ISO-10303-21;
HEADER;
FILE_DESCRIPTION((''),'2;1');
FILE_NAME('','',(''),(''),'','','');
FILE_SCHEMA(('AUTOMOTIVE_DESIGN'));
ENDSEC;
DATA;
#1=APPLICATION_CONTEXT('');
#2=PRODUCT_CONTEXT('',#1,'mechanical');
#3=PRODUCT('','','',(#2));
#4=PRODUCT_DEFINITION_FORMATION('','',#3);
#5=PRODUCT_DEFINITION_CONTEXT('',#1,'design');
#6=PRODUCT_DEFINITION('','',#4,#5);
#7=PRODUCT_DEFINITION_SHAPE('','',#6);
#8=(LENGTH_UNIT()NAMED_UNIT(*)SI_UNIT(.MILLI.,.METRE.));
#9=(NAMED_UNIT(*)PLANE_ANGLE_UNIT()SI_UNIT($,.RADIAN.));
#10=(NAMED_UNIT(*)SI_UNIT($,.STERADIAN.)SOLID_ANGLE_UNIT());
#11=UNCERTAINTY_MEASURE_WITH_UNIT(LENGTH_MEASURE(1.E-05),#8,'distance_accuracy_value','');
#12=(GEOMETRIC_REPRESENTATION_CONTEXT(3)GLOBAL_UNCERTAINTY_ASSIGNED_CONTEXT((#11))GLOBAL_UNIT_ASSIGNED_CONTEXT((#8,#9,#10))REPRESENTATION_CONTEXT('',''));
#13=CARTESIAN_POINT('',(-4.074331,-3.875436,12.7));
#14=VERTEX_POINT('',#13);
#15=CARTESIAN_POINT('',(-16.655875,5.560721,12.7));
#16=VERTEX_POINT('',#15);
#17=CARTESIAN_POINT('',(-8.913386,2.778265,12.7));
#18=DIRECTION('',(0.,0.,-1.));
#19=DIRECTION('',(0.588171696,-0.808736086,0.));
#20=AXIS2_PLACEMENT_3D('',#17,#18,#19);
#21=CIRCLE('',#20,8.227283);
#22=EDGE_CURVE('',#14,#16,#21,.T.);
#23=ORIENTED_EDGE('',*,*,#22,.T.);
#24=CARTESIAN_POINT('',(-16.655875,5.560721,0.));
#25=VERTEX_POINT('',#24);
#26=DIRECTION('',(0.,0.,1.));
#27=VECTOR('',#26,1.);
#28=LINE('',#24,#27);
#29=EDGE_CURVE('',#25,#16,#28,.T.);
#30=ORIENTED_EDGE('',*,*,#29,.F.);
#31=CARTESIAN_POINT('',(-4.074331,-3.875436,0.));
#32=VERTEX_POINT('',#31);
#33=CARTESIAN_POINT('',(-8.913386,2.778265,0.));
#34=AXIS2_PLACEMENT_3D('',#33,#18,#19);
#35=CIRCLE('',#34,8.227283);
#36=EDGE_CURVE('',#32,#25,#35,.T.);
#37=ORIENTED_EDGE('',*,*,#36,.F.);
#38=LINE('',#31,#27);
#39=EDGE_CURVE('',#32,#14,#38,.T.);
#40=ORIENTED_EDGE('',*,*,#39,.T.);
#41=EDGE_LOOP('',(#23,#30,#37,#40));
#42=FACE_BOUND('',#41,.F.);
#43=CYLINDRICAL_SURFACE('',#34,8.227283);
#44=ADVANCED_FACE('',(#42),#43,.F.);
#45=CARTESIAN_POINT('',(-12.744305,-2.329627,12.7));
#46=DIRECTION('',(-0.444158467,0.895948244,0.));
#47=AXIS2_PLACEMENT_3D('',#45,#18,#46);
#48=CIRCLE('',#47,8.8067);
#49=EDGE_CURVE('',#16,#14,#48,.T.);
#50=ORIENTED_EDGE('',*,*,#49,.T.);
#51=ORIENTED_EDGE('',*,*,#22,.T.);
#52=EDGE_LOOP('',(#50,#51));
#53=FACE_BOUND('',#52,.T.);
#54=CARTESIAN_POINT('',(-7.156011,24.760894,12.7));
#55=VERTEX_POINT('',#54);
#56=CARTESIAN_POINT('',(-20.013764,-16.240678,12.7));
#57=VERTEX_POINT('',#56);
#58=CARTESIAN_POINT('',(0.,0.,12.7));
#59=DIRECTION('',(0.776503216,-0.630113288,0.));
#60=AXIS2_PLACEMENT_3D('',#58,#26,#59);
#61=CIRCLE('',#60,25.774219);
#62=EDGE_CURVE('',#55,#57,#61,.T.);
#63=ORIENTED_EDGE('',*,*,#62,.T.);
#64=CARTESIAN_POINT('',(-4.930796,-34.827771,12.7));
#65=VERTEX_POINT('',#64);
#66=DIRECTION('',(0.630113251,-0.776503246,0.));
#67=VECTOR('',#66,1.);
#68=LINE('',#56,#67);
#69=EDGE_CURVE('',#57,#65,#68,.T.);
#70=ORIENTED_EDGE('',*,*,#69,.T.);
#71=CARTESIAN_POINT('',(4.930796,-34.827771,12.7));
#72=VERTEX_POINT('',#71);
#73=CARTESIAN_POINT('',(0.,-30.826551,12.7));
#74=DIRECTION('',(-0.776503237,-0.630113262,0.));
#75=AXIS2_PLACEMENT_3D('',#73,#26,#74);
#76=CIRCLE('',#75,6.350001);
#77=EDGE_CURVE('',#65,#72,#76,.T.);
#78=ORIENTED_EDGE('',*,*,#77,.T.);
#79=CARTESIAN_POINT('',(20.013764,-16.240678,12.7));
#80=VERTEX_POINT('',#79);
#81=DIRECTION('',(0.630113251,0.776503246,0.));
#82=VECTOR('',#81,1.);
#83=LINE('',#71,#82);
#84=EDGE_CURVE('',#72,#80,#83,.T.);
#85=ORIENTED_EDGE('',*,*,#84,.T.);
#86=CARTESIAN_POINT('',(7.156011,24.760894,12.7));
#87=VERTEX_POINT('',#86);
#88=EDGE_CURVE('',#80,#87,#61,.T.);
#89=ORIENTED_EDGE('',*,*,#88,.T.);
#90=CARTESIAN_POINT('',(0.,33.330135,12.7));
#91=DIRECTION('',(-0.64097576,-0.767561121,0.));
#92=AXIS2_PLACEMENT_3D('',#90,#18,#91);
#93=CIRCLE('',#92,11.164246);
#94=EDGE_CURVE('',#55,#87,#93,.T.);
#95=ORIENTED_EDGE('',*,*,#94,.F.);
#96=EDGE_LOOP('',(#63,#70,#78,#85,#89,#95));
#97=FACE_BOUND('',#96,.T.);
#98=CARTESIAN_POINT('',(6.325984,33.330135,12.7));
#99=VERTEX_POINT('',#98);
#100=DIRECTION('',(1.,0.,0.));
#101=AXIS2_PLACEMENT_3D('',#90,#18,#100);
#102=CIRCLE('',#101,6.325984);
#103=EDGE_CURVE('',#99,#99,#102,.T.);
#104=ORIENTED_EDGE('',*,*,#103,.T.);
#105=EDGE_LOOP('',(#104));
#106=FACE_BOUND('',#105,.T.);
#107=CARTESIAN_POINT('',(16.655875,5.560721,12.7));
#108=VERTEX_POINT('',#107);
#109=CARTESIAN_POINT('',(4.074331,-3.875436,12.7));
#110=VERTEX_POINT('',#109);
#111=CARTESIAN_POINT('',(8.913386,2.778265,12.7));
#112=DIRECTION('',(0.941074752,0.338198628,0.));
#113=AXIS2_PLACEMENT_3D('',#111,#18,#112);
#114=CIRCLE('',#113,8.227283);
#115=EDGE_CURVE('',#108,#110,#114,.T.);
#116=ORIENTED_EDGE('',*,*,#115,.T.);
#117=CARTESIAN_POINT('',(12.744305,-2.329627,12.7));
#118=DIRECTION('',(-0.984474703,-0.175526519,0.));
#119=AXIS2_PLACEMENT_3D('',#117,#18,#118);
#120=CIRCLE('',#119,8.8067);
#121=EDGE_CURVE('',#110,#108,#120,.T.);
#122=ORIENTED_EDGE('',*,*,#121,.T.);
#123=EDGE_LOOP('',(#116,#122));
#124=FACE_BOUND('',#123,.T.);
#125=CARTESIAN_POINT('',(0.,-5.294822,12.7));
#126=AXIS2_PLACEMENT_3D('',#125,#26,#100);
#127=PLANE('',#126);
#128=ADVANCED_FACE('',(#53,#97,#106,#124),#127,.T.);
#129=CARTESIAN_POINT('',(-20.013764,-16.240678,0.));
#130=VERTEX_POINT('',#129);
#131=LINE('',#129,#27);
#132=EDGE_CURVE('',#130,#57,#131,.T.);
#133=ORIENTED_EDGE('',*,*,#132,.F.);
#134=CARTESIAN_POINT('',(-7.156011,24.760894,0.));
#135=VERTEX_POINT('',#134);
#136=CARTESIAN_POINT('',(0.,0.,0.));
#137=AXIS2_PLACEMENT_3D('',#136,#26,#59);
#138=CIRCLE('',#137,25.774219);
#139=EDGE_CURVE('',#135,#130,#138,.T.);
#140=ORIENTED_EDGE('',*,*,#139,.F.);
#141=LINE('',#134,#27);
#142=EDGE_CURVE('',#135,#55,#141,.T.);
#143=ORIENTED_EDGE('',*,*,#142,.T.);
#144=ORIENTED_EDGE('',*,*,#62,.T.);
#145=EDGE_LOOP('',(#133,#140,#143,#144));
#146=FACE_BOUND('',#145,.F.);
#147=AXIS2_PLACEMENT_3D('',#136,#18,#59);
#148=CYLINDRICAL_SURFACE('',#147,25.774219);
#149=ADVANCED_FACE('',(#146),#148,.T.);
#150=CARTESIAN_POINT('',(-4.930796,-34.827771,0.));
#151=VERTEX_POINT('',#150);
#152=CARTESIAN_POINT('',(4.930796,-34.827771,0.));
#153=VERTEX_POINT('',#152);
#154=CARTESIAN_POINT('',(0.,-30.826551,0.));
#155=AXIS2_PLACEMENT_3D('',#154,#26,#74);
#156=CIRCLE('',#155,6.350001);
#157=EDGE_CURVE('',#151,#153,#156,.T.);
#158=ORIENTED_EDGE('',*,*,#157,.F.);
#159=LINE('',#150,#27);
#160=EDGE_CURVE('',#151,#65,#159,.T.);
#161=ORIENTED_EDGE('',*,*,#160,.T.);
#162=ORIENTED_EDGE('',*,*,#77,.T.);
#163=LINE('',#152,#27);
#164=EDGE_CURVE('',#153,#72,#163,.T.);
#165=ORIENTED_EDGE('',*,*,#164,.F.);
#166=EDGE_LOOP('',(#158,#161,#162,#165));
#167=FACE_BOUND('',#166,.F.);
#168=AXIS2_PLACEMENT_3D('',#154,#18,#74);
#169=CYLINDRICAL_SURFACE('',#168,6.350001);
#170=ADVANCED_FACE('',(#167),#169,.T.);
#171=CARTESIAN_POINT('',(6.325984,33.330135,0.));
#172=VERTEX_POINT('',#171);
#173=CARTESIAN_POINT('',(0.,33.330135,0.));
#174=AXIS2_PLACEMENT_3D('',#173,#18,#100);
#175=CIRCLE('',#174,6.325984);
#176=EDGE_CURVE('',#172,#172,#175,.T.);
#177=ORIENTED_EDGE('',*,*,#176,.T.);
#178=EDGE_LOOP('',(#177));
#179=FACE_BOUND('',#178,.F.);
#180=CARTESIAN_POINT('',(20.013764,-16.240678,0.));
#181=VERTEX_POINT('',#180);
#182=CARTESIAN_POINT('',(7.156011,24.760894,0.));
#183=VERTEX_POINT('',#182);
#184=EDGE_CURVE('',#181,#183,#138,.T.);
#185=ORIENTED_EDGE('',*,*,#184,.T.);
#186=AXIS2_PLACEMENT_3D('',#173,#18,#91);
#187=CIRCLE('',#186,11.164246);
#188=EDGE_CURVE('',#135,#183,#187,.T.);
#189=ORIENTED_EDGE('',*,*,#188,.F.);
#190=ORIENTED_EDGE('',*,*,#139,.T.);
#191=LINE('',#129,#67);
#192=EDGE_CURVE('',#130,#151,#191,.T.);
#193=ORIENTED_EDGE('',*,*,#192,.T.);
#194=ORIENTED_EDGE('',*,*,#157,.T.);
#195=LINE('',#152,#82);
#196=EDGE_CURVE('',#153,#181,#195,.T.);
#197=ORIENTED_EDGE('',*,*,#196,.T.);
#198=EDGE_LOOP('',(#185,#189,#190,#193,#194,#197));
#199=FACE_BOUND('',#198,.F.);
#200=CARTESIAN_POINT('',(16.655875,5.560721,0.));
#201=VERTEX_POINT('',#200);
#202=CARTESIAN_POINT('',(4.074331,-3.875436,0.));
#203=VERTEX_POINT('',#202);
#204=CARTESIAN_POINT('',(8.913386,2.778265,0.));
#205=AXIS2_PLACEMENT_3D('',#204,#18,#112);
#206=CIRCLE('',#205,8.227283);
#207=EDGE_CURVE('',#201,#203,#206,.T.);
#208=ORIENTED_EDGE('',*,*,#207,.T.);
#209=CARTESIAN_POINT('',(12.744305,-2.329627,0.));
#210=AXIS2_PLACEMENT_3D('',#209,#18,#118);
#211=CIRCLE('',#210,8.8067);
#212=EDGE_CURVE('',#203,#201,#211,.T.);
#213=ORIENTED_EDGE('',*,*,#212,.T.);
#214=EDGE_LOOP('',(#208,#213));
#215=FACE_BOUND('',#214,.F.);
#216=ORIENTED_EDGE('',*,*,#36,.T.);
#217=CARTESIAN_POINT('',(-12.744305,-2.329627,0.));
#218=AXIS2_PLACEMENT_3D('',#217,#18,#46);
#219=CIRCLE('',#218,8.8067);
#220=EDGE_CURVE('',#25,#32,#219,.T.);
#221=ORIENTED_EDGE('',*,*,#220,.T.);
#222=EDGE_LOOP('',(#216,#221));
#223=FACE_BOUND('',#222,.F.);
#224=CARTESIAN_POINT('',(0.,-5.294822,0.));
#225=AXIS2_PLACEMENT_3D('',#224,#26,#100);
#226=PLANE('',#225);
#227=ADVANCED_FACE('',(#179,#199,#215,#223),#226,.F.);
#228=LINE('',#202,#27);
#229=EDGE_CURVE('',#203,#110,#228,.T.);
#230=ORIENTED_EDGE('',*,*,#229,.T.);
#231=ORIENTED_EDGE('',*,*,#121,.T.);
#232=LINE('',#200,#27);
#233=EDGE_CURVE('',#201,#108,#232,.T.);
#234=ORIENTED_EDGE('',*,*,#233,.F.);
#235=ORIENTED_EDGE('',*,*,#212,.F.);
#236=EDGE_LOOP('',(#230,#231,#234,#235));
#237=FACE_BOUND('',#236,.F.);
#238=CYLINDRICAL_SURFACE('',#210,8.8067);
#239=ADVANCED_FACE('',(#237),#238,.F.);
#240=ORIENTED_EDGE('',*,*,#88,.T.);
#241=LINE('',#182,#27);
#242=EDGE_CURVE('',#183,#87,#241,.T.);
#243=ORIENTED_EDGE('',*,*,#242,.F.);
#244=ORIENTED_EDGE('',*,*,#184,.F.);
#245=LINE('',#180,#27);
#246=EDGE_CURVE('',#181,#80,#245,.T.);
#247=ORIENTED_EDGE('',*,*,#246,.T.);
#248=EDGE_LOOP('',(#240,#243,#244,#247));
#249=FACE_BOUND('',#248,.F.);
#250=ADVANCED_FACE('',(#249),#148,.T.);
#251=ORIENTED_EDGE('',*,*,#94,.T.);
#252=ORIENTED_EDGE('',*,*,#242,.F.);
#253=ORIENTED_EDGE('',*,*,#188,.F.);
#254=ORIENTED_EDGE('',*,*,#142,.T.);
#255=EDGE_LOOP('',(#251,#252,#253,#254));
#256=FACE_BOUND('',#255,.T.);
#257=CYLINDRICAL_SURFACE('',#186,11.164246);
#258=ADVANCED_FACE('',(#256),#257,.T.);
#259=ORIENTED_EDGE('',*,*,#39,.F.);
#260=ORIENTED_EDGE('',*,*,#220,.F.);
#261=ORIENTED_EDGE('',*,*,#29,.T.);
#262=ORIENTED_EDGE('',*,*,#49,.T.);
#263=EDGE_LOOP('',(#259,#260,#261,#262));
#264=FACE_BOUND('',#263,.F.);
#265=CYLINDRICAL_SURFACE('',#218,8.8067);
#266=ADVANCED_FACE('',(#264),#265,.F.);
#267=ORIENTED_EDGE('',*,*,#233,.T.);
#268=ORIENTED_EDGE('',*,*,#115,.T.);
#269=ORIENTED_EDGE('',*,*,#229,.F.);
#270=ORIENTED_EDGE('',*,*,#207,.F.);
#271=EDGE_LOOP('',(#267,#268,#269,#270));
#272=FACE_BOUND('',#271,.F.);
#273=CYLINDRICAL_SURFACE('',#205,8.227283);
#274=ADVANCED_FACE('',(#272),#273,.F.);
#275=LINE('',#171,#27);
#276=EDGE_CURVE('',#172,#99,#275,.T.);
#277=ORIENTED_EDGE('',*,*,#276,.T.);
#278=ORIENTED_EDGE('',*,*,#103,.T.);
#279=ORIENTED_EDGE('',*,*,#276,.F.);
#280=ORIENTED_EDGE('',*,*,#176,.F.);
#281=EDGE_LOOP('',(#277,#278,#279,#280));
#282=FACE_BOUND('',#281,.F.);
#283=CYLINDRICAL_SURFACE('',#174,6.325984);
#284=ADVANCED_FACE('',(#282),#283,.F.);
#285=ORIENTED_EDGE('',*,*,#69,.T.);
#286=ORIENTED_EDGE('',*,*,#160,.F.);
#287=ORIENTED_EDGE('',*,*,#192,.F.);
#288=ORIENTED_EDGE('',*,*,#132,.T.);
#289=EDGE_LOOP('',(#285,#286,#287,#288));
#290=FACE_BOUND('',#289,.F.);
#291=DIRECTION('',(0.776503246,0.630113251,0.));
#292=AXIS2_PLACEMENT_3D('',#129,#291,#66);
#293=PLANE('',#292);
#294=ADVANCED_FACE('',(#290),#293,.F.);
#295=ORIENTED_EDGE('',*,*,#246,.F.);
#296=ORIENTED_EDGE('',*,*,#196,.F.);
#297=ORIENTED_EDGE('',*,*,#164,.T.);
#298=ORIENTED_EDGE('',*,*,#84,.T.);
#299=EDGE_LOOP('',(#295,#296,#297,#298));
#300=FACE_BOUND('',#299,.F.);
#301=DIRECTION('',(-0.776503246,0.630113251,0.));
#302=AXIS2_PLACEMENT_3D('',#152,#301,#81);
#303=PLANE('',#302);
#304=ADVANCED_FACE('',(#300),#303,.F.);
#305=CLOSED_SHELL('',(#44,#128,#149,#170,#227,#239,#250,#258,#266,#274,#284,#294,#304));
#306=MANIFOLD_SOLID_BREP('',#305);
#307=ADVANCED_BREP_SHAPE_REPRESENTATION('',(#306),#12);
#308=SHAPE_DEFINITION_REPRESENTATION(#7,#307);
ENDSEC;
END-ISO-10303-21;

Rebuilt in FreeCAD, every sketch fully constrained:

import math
import FreeCAD as App
import Part
import Sketcher
from FreeCAD import Vector
Q = App.Units.Quantity

doc = App.newDocument("Part")
body = doc.addObject("PartDesign::Body", "Body")

sketch1 = doc.addObject("Sketcher::SketchObject", "Sketch")
body.addObject(sketch1)
sketch1.AttachmentSupport = (doc.XY_Plane, [""])
sketch1.MapMode = "FlatFace"
sketch1.addGeometry([
    Part.LineSegment(Vector(5, -35, 0), Vector(20, -16, 0)),
    Part.ArcOfCircle(Part.Circle(Vector(0, 0, 0), Vector(0, 0, 1), 26), math.radians(-39), math.radians(219)),
    Part.LineSegment(Vector(-20, -16, 0), Vector(-5, -35, 0)),
    Part.ArcOfCircle(Part.Circle(Vector(0, -31, 0), Vector(0, 0, 1), 6), math.radians(-141), math.radians(-39)),
    Part.ArcOfCircle(Part.Circle(Vector(-9, 3, 0), Vector(0, 0, 1), 8), math.radians(160), math.radians(306)),
    Part.ArcOfCircle(Part.Circle(Vector(-13, -2, 0), Vector(0, 0, 1), 9), math.radians(-10), math.radians(116)),
    Part.ArcOfCircle(Part.Circle(Vector(13, -2, 0), Vector(0, 0, 1), 9), math.radians(64), math.radians(190)),
    Part.ArcOfCircle(Part.Circle(Vector(9, 3, 0), Vector(0, 0, 1), 8), math.radians(-126), math.radians(20)),
], False)
sketch1.addConstraint([
    Sketcher.Constraint("Tangent", 0, 2, 1, 1),
    Sketcher.Constraint("Tangent", 1, 2, 2, 1),
    Sketcher.Constraint("Tangent", 2, 2, 3, 1),
    Sketcher.Constraint("Tangent", 3, 2, 0, 1),
    Sketcher.Constraint("Coincident", 4, 1, 5, 2),
    Sketcher.Constraint("Coincident", 5, 1, 4, 2),
    Sketcher.Constraint("Coincident", 6, 1, 7, 2),
    Sketcher.Constraint("Coincident", 7, 1, 6, 2),
    Sketcher.Constraint("Coincident", 1, 3, -1, 1),
    Sketcher.Constraint("Equal", 5, 6),
    Sketcher.Constraint("Equal", 4, 7),
    Sketcher.Constraint("Symmetric", 5, 3, 6, 3, -2),
    Sketcher.Constraint("Symmetric", 4, 3, 7, 3, -2),
    Sketcher.Constraint("PointOnObject", 3, 3, -2),
    Sketcher.Constraint("Radius", 3, Q("0.25 in")),
    Sketcher.Constraint("Radius", 5, 8.8067),
    Sketcher.Constraint("Radius", 1, 25.774219),
    Sketcher.Constraint("Radius", 4, 8.227283),
    Sketcher.Constraint("DistanceY", 1, 2, 4, 1, 21.801399),
    Sketcher.Constraint("DistanceY", 5, 1, 4, 3, 6.653701),
    Sketcher.Constraint("DistanceY", 3, 3, -1, 1, 30.826551),
    Sketcher.Constraint("DistanceX", 5, 1, -1, 1, 4.074331),
    Sketcher.Constraint("DistanceX", 5, 3, 4, 3, 3.830918),
])
pad1 = doc.addObject("PartDesign::Pad", "Pad")
body.addObject(pad1)
pad1.Profile = sketch1
pad1.Length = Q("0.5 in")

sketch2 = doc.addObject("Sketcher::SketchObject", "Sketch001")
body.addObject(sketch2)
sketch2.AttachmentSupport = (doc.XY_Plane, [""])
sketch2.MapMode = "FlatFace"
sketch2.addGeometry([
    Part.ArcOfCircle(Part.Circle(Vector(0, 0, 0), Vector(0, 0, 1), 26), math.radians(74), math.radians(106)),
    Part.ArcOfCircle(Part.Circle(Vector(0, 33, 0), Vector(0, 0, 1), 11), math.radians(-50), math.radians(230)),
    Part.Circle(Vector(0, 33, 0), Vector(0, 0, 1), 6),
], False)
sketch2.addConstraint([
    Sketcher.Constraint("Coincident", 0, 1, 1, 1),
    Sketcher.Constraint("Coincident", 1, 2, 0, 2),
    Sketcher.Constraint("Coincident", 0, 3, -1, 1),
    Sketcher.Constraint("Coincident", 2, 3, 1, 3),
    Sketcher.Constraint("PointOnObject", 1, 3, -2),
    Sketcher.Constraint("Radius", 0, 25.774219),
    Sketcher.Constraint("Diameter", 2, 12.651968),
    Sketcher.Constraint("Radius", 1, 11.164246),
    Sketcher.Constraint("DistanceX", -1, 1, 0, 1, 7.156011),
])
pad2 = doc.addObject("PartDesign::Pad", "Pad001")
body.addObject(pad2)
pad2.Profile = sketch2
pad2.Length = Q("0.5 in")

doc.recompute()
